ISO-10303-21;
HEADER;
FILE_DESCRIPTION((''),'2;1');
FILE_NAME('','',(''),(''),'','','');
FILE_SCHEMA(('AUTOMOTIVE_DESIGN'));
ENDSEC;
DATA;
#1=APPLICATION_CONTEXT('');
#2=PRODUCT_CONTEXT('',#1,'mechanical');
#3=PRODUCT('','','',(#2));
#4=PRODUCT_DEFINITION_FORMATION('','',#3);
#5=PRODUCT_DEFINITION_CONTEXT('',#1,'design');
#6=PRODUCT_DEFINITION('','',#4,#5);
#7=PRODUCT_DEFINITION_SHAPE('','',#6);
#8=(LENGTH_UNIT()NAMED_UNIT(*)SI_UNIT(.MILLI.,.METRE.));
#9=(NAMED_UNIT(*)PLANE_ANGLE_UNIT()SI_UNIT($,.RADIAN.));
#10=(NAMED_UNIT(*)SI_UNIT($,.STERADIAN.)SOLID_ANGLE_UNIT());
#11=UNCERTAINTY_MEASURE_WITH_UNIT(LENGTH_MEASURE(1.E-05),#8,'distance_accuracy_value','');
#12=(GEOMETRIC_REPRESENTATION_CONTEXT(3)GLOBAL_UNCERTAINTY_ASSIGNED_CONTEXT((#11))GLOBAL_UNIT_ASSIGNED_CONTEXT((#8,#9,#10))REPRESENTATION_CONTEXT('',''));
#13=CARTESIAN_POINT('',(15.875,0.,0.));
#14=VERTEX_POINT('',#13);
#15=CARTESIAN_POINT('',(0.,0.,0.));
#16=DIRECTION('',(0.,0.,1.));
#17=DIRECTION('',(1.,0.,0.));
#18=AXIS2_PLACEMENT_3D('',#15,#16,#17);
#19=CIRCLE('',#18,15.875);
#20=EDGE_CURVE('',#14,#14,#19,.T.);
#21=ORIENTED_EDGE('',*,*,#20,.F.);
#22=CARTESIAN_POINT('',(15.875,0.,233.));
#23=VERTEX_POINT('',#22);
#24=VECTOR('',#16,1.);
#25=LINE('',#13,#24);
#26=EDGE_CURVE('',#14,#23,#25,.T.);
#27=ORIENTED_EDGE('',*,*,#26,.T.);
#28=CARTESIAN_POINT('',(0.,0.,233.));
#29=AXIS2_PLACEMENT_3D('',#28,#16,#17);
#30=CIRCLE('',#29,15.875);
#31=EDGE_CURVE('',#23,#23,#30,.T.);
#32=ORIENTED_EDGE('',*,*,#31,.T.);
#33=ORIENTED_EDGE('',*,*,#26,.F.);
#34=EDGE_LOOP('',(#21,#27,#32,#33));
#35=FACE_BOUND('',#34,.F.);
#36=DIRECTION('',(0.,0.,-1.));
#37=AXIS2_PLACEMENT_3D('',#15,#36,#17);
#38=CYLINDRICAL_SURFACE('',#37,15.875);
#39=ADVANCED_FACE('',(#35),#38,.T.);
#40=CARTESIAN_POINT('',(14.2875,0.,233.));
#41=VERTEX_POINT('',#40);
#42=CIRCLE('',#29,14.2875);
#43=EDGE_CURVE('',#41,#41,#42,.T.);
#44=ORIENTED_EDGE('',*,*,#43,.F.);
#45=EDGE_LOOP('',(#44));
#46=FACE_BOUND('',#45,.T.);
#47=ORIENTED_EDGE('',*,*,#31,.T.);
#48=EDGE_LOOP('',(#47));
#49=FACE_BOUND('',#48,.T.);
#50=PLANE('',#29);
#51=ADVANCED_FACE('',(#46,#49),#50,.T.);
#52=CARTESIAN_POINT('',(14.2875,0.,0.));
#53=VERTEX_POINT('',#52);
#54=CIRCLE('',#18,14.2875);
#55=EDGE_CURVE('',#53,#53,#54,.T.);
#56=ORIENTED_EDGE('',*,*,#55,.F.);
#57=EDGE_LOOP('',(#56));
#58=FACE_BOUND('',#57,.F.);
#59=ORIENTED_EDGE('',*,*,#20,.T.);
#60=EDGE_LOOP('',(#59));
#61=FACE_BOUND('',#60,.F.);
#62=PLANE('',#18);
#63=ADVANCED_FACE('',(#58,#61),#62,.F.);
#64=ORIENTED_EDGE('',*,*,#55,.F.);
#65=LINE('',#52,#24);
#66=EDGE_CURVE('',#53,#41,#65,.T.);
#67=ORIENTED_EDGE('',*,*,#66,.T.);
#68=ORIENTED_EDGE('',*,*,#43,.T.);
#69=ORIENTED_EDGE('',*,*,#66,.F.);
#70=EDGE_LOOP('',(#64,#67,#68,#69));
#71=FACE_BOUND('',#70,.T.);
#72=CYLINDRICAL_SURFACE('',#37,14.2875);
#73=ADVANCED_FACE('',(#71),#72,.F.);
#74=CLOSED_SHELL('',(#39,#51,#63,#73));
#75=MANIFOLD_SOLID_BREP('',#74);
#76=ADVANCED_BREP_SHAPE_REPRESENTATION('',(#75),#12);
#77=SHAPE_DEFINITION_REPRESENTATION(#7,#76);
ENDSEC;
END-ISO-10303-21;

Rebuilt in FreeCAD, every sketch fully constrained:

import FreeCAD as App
import Part
import Sketcher
from FreeCAD import Vector
Q = App.Units.Quantity

doc = App.newDocument("Part")
body = doc.addObject("PartDesign::Body", "Body")

sketch1 = body.newObject("Sketcher::SketchObject", "Sketch")
sketch1.AttachmentSupport = (doc.getObject("XY_Plane"), [""])
sketch1.MapMode = "FlatFace"
sketch1.addGeometry([
    Part.Circle(Vector(0, 0, 0), Vector(0, 0, 1), 16),
    Part.Circle(Vector(0, 0, 0), Vector(0, 0, 1), 14),
], False)
sketch1.addConstraint([
    Sketcher.Constraint("Coincident", 0, 3, -1, 1),
    Sketcher.Constraint("Coincident", 1, 3, -1, 1),
    Sketcher.Constraint("Diameter", 0, Q("1.25 in")),
    Sketcher.Constraint("Diameter", 1, Q("1.125 in")),
])
pad1 = body.newObject("PartDesign::Pad", "Pad")
pad1.Profile = sketch1
pad1.Length = 233

doc.recompute()
